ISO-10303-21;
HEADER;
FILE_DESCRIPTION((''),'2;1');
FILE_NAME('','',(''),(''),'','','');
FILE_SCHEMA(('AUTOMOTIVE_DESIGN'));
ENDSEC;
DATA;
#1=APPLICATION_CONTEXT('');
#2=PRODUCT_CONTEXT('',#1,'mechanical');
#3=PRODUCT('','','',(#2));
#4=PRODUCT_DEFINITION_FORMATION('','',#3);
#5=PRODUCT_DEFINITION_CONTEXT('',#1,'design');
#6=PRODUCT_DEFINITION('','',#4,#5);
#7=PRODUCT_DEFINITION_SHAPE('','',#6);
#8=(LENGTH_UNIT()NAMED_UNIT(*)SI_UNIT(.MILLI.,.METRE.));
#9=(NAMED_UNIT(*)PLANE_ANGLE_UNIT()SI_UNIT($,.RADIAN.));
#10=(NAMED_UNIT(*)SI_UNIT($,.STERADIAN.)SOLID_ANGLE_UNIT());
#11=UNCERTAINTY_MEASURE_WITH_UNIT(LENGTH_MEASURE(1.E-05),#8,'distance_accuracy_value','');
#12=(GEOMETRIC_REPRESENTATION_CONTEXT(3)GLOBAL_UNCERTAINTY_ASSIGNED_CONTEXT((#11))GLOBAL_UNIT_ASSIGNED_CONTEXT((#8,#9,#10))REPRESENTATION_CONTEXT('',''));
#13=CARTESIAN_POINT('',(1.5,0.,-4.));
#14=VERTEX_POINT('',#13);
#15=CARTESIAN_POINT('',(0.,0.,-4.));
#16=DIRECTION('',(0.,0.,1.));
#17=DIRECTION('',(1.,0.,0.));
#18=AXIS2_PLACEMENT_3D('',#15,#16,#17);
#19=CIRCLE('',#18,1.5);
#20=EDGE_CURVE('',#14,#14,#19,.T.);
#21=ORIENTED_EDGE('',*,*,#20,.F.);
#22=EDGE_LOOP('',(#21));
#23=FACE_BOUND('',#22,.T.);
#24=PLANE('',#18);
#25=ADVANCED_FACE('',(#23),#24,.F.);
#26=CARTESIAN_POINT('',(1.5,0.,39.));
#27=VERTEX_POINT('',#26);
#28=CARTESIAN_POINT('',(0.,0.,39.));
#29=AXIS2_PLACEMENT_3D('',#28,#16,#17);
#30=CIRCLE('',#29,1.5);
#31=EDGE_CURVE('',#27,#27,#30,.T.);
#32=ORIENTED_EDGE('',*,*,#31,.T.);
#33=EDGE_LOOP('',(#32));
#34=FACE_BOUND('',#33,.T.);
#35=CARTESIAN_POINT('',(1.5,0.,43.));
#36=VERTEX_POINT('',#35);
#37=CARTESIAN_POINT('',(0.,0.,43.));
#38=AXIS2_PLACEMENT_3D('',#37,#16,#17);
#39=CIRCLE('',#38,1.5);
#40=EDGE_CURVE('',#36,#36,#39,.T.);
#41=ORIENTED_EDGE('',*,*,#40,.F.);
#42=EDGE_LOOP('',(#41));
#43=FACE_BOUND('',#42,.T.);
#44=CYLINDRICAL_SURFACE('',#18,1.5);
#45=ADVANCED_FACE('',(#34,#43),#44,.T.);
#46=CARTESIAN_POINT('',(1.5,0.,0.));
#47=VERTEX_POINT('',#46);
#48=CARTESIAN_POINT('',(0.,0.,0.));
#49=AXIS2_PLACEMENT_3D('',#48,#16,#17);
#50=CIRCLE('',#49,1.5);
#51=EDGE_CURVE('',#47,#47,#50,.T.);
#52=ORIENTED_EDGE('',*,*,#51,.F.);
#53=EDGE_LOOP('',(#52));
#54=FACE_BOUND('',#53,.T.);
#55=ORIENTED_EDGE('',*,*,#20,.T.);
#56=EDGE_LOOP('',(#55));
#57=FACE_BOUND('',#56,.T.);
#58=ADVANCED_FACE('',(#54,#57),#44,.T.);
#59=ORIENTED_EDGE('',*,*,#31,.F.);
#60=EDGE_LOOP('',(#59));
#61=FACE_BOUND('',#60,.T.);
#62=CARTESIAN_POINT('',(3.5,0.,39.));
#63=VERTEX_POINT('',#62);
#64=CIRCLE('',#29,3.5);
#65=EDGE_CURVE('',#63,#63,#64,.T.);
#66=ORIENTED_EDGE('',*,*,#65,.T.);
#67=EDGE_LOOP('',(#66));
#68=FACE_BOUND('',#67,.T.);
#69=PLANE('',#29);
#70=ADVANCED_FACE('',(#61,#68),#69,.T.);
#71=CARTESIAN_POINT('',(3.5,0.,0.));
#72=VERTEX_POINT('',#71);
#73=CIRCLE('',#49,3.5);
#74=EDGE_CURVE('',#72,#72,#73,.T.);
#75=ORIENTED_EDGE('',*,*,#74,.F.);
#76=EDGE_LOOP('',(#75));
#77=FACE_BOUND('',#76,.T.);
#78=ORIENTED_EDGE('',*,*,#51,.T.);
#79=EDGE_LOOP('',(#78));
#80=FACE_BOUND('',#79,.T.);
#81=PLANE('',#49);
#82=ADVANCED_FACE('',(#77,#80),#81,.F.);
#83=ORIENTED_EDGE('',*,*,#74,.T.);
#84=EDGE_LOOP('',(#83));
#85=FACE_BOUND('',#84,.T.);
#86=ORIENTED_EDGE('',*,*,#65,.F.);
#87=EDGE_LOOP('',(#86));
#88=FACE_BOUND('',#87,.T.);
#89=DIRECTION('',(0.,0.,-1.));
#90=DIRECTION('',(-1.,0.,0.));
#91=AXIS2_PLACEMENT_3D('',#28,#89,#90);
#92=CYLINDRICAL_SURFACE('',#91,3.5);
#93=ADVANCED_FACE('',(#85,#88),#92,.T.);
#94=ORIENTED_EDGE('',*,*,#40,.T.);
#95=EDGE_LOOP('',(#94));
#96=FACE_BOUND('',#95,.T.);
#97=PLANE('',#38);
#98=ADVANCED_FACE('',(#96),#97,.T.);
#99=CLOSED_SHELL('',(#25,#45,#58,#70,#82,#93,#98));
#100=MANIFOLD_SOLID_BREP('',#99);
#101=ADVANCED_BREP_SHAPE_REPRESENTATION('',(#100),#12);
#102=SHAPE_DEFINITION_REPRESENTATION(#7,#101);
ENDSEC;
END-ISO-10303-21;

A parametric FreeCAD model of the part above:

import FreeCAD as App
import Part
import Sketcher

V = App.Vector
Q = App.Units.Quantity

doc = App.newDocument("Part")
body = doc.addObject("PartDesign::Body", "Body")

# Sketch on XY plane
sketch1 = doc.addObject("Sketcher::SketchObject", "Sketch")
body.addObject(sketch1)
sketch1.AttachmentSupport = (doc.XY_Plane, [""])
sketch1.MapMode = "FlatFace"
sketch1.addGeometry(Part.Circle(V(0, 0, 0), V(0, 0, 1), 3.5), False)
sketch1.addConstraint([
    Sketcher.Constraint("Coincident", 0, 3, -1, 1),
    Sketcher.Constraint("Diameter", 0, Q("7 mm")),
])
pad1 = doc.addObject("PartDesign::Pad", "Pad")
body.addObject(pad1)
pad1.Profile = sketch1
pad1.Length = 39

# Sketch on XY plane
sketch2 = doc.addObject("Sketcher::SketchObject", "Sketch001")
body.addObject(sketch2)
sketch2.AttachmentSupport = (doc.XY_Plane, [""])
sketch2.MapMode = "FlatFace"
sketch2.AttachmentOffset = App.Placement(V(0, 0, 39), App.Rotation())
sketch2.addGeometry(Part.Circle(V(0, 0, 0), V(0, 0, 1), 1.5), False)
sketch2.addConstraint([
    Sketcher.Constraint("Coincident", 0, 3, -1, 1),
    Sketcher.Constraint("Diameter", 0, Q("3 mm")),
])
pad2 = doc.addObject("PartDesign::Pad", "Pad001")
body.addObject(pad2)
pad2.Profile = sketch2
pad2.Type = "TwoLengths"
pad2.Length = 4
pad2.Length2 = 43

doc.recompute()
